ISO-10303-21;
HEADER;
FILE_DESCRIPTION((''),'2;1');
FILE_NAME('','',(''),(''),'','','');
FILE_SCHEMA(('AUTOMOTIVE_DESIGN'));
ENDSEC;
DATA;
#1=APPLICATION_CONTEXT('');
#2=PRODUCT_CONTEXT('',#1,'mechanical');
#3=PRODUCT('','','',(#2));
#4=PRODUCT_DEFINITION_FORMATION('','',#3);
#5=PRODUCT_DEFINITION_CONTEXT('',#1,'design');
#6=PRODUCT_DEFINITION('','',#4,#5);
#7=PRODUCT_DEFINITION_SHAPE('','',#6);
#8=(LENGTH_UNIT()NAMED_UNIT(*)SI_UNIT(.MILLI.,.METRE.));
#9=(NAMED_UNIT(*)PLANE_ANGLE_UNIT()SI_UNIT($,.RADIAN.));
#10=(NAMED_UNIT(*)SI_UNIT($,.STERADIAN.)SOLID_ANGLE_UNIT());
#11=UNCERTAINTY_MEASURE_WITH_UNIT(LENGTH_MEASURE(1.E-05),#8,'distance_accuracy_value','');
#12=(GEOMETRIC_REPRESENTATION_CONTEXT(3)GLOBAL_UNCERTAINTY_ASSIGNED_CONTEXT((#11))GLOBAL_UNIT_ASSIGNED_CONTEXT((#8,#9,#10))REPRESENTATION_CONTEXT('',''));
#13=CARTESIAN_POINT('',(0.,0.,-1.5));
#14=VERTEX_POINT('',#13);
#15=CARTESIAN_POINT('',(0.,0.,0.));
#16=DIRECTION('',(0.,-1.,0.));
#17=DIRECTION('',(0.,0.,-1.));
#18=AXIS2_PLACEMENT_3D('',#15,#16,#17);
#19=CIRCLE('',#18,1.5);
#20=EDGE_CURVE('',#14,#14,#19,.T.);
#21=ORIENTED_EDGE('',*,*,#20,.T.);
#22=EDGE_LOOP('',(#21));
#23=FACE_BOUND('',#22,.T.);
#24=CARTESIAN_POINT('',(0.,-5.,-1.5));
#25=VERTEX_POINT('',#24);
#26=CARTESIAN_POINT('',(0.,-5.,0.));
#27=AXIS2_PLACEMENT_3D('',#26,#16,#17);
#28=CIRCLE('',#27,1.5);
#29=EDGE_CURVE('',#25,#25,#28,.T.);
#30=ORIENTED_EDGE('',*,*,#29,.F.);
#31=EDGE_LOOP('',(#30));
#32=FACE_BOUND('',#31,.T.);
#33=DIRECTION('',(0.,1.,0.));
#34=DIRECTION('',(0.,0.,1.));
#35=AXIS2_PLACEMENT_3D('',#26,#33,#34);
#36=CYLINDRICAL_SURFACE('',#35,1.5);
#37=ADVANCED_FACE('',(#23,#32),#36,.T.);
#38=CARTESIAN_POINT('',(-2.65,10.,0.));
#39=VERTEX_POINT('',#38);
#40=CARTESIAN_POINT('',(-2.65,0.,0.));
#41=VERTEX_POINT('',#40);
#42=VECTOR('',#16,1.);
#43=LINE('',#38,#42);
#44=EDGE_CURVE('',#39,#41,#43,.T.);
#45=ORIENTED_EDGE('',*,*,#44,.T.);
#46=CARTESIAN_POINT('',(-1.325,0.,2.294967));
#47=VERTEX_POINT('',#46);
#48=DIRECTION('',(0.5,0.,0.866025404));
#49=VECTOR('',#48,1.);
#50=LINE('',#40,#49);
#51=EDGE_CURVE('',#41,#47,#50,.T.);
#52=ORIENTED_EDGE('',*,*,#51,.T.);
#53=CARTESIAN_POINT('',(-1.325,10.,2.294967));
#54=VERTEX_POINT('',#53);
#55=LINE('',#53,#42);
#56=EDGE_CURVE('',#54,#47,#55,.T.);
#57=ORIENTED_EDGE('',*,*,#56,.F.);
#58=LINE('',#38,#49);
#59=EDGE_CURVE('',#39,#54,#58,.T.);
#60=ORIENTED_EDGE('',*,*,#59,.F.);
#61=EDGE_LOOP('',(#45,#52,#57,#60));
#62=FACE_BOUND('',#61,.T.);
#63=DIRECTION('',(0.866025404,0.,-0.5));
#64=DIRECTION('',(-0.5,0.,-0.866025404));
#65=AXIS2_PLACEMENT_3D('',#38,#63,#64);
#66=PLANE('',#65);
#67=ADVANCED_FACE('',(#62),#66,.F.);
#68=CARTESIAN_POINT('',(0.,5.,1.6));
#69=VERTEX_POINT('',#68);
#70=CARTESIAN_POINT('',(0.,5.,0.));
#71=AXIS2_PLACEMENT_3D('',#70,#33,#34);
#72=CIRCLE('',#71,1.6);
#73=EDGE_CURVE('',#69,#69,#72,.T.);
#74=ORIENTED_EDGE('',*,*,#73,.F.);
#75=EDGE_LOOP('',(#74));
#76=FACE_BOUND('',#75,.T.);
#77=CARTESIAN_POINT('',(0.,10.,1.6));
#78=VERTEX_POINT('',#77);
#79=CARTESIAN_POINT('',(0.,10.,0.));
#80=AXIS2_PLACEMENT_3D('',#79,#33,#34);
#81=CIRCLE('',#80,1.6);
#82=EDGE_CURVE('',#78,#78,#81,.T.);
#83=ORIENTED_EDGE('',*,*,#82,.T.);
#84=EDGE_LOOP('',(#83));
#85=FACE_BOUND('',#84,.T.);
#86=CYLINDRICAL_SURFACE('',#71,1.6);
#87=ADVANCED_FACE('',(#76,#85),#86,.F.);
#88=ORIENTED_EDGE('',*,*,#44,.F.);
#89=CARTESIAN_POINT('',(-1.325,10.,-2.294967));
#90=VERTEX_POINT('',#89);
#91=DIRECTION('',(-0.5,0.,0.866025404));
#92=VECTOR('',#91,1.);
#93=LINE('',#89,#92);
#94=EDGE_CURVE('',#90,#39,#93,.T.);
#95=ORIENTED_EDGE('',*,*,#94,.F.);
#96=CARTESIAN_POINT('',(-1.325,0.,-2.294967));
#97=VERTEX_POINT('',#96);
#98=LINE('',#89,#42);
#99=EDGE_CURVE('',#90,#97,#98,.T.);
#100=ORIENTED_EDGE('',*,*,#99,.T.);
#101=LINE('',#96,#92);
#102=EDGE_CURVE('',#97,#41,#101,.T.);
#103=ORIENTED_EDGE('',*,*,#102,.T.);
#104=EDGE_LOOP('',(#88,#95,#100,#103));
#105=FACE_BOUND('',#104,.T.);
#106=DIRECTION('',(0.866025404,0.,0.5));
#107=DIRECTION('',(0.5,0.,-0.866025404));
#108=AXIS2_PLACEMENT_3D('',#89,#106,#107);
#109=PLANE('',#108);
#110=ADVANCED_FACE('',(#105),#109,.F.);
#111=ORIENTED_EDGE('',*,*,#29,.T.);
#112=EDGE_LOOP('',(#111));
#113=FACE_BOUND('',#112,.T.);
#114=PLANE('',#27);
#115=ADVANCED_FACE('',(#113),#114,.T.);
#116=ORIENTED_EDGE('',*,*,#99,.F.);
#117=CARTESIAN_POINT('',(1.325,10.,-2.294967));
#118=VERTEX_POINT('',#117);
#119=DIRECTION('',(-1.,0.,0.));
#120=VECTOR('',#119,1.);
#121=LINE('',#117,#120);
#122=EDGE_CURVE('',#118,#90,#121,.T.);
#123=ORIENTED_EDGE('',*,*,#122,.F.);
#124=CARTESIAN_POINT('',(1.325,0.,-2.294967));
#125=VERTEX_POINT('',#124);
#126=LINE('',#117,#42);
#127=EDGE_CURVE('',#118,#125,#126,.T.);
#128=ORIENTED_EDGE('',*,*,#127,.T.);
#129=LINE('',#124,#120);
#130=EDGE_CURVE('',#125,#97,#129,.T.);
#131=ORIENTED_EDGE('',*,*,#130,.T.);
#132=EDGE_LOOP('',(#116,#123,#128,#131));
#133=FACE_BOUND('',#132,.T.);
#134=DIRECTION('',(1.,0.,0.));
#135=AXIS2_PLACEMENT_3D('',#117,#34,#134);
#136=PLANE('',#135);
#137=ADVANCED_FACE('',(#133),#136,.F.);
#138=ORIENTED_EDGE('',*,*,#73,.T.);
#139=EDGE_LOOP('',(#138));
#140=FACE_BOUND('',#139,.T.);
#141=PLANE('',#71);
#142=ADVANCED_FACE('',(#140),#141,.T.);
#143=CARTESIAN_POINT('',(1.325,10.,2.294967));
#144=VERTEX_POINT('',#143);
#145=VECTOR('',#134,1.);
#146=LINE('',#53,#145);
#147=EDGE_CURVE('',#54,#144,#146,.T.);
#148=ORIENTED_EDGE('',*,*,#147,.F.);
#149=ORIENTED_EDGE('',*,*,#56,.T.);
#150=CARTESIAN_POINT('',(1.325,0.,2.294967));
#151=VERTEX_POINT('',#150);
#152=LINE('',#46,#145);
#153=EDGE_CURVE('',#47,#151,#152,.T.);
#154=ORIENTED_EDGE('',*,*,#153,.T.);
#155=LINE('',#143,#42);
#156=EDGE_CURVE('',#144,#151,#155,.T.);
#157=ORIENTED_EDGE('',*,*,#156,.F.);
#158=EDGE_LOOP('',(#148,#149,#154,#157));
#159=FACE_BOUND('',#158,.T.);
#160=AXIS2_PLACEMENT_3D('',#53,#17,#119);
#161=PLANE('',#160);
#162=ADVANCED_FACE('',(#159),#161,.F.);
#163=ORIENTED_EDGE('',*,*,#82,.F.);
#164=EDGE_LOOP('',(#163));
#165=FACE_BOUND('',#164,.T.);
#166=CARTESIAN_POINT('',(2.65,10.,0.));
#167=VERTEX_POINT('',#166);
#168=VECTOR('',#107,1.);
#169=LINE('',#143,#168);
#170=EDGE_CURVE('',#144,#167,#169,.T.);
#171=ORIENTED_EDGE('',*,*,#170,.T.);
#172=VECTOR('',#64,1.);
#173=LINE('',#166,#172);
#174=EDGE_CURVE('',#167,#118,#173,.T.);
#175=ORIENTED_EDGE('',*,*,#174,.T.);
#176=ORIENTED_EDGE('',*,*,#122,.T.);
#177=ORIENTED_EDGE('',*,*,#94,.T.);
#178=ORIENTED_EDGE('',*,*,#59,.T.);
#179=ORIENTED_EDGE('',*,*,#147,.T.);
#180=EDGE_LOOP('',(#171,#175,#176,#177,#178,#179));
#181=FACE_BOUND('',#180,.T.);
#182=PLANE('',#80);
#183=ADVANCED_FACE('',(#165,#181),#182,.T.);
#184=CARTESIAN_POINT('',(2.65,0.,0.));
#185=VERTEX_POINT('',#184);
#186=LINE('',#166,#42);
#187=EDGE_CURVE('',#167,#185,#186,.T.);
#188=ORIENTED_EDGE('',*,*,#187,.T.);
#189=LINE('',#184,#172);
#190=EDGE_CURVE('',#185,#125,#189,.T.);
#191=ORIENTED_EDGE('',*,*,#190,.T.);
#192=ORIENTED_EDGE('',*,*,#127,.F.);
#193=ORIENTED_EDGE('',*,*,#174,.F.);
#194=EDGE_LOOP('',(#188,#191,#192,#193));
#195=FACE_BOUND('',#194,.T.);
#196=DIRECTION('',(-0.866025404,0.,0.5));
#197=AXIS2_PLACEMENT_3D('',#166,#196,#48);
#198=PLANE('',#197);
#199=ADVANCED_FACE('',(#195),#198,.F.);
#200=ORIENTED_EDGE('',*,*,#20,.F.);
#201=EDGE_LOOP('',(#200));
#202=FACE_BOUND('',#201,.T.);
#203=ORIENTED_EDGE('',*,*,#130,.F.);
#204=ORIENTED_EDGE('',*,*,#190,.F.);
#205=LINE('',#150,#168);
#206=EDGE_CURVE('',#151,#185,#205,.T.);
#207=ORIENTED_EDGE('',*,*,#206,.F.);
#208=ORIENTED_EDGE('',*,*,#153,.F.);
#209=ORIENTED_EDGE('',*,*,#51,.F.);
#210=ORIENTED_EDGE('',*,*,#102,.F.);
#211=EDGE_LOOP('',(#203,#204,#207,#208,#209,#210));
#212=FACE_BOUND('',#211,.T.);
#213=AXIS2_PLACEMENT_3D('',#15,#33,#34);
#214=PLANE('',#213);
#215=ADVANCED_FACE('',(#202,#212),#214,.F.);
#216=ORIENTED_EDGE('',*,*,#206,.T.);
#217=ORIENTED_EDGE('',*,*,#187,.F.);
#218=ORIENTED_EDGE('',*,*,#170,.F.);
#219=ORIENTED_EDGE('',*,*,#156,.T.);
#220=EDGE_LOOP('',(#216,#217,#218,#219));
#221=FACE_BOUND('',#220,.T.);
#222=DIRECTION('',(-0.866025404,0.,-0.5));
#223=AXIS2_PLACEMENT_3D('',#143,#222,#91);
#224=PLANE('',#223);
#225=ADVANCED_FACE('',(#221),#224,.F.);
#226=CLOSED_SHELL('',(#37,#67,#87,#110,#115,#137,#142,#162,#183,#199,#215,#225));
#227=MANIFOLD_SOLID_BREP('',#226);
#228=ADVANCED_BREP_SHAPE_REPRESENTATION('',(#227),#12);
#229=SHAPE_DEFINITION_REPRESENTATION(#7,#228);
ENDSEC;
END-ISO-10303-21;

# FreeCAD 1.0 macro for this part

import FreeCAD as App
import Part
import Sketcher

V = App.Vector
Q = App.Units.Quantity


def add_polygon(sketch, points):
    """Adds a closed chain of lines whose ends are joined by coincident constraints."""
    first, n = sketch.GeometryCount, len(points)
    for a, b in zip(points, points[1:] + points[:1]):
        sketch.addGeometry(Part.LineSegment(App.Vector(*a, 0), App.Vector(*b, 0)), False)
    for i in range(n):
        sketch.addConstraint(Sketcher.Constraint("Coincident", first + i, 2, first + (i + 1) % n, 1))

doc = App.newDocument("Part")
body = doc.addObject("PartDesign::Body", "Body")

# Sketch on XZ plane
sketch1 = body.newObject("Sketcher::SketchObject", "Sketch")
sketch1.AttachmentSupport = (doc.getObject("XZ_Plane"), [""])
sketch1.MapMode = "FlatFace"
add_polygon(sketch1, [(2.6, 0), (1.3, -2.3), (-1.3, -2.3), (-2.6, 0), (-1.3, 2.3), (1.3, 2.3)])  # lines 0-5
sketch1.addConstraint([
    Sketcher.Constraint("Horizontal", 1),
    Sketcher.Constraint("Horizontal", 4),
    Sketcher.Constraint("Symmetric", 0, 2, 3, 2, -1, 1),
    Sketcher.Constraint("Symmetric", 2, 2, 5, 2, -1, 1),
    Sketcher.Constraint("PointOnObject", 2, 2, -1),
    Sketcher.Constraint("Parallel", 2, 5),
    Sketcher.Constraint("Vertical", 1, 2, 3, 2),
    Sketcher.Constraint("Angle", 0, Q("-120 deg")),
    Sketcher.Constraint("DistanceX", 1, 2, 1, 1, Q("2.65 mm")),
    Sketcher.Constraint("DistanceX", 2, 2, 5, 2, Q("5.3 mm")),
])
pad1 = body.newObject("PartDesign::Pad", "Pad")
pad1.Profile = sketch1
pad1.Length = 10
pad1.Reversed = True

# Sketch on XZ plane
sketch2 = body.newObject("Sketcher::SketchObject", "Sketch001")
sketch2.AttachmentSupport = (doc.getObject("XZ_Plane"), [""])
sketch2.MapMode = "FlatFace"
sketch2.AttachmentOffset = App.Placement(V(0, 0, -10), App.Rotation())
sketch2.addGeometry(Part.Circle(V(0, 0, 0), V(0, 0, 1), 1.6), False)
sketch2.addConstraint([
    Sketcher.Constraint("Coincident", 0, 3, -1, 1),
    Sketcher.Constraint("Diameter", 0, Q("3.2 mm")),
])
pocket1 = body.newObject("PartDesign::Pocket", "Pocket")
pocket1.Profile = sketch2
pocket1.Length = 5
pocket1.Reversed = True

# Sketch on XZ plane
sketch3 = body.newObject("Sketcher::SketchObject", "Sketch002")
sketch3.AttachmentSupport = (doc.getObject("XZ_Plane"), [""])
sketch3.MapMode = "FlatFace"
sketch3.addGeometry(Part.Circle(V(0, 0, 0), V(0, 0, 1), 1.5), False)
sketch3.addConstraint([
    Sketcher.Constraint("Coincident", 0, 3, -1, 1),
    Sketcher.Constraint("Diameter", 0, Q("3 mm")),
])
pad2 = body.newObject("PartDesign::Pad", "Pad001")
pad2.Profile = sketch3
pad2.Length = 5

doc.recompute()
